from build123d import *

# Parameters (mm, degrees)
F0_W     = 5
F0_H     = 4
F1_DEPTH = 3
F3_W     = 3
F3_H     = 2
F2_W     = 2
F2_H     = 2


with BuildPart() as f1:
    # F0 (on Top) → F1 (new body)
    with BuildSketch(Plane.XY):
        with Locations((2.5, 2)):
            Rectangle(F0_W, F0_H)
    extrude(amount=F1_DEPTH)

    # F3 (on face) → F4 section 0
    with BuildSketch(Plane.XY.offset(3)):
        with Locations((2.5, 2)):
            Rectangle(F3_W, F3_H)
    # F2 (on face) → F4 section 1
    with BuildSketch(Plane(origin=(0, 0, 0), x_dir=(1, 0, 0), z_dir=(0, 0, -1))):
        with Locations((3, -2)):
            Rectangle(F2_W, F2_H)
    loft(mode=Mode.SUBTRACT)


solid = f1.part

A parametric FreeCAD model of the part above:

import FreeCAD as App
import Part
import Sketcher
from FreeCAD import Vector

doc = App.newDocument("Part")
params = doc.addObject("Spreadsheet::Sheet", "Params")
for row, (alias, value) in enumerate([
    ("sketch1_width", "5 mm"),
    ("sketch1_height", "4 mm"),
    ("pad1_length", "3 mm"),
    ("sketch2_width", "3 mm"),
    ("sketch2_height", "2 mm"),
    ("sketch3_width", "2 mm"),
], start=1):
    params.set(f"A{row}", alias)
    params.set(f"B{row}", "=" + value)
    params.setAlias(f"B{row}", alias)

body = doc.addObject("PartDesign::Body", "Body")

# Sketch on XY plane
sketch1 = body.newObject("Sketcher::SketchObject", "Sketch")
sketch1.AttachmentSupport = (doc.getObject("XY_Plane"), [""])
sketch1.MapMode = "FlatFace"
sketch1.addGeometry(Part.LineSegment(Vector(0, 4, 0), Vector(0, 0, 0)), False)
sketch1.addGeometry(Part.LineSegment(Vector(0, 0, 0), Vector(5, 0, 0)), False)
sketch1.addGeometry(Part.LineSegment(Vector(5, 0, 0), Vector(5, 4, 0)), False)
sketch1.addGeometry(Part.LineSegment(Vector(5, 4, 0), Vector(0, 4, 0)), False)
sketch1.addConstraint(Sketcher.Constraint("Coincident", 0, 2, 1, 1))
sketch1.addConstraint(Sketcher.Constraint("Coincident", 1, 2, 2, 1))
sketch1.addConstraint(Sketcher.Constraint("Coincident", 2, 2, 3, 1))
sketch1.addConstraint(Sketcher.Constraint("Coincident", 3, 2, 0, 1))
sketch1.addConstraint(Sketcher.Constraint("Vertical", 0))
sketch1.addConstraint(Sketcher.Constraint("Horizontal", 1))
sketch1.addConstraint(Sketcher.Constraint("Vertical", 2))
sketch1.addConstraint(Sketcher.Constraint("Horizontal", 3))
sketch1.addConstraint(Sketcher.Constraint("Coincident", 0, 2, -1, 1))
sketch1.addConstraint(Sketcher.Constraint("DistanceX", 1, 1, 1, 2, 5.0))
sketch1.addConstraint(Sketcher.Constraint("DistanceY", 0, 2, 0, 1, 4.0))
sketch1.setExpression("Constraints[9]", "Params.sketch1_width")
sketch1.setExpression("Constraints[10]", "Params.sketch1_height")
pad1 = body.newObject("PartDesign::Pad", "Pad")
pad1.Profile = sketch1
pad1.setExpression("Length", "Params.pad1_length")

# Sketch on XY plane
sketch2 = body.newObject("Sketcher::SketchObject", "Sketch001")
sketch2.AttachmentSupport = (doc.getObject("XY_Plane"), [""])
sketch2.MapMode = "FlatFace"
sketch2.AttachmentOffset = App.Placement(Vector(0, 0, 3), App.Rotation())
sketch2.addGeometry(Part.LineSegment(Vector(1, 3, 0), Vector(1, 1, 0)), False)
sketch2.addGeometry(Part.LineSegment(Vector(1, 1, 0), Vector(4, 1, 0)), False)
sketch2.addGeometry(Part.LineSegment(Vector(4, 1, 0), Vector(4, 3, 0)), False)
sketch2.addGeometry(Part.LineSegment(Vector(4, 3, 0), Vector(1, 3, 0)), False)
sketch2.addConstraint(Sketcher.Constraint("Coincident", 0, 2, 1, 1))
sketch2.addConstraint(Sketcher.Constraint("Coincident", 1, 2, 2, 1))
sketch2.addConstraint(Sketcher.Constraint("Coincident", 2, 2, 3, 1))
sketch2.addConstraint(Sketcher.Constraint("Coincident", 3, 2, 0, 1))
sketch2.addConstraint(Sketcher.Constraint("Vertical", 0))
sketch2.addConstraint(Sketcher.Constraint("Horizontal", 1))
sketch2.addConstraint(Sketcher.Constraint("Vertical", 2))
sketch2.addConstraint(Sketcher.Constraint("Horizontal", 3))
sketch2.addConstraint(Sketcher.Constraint("DistanceX", 1, 1, 1, 2, 3.0))
sketch2.addConstraint(Sketcher.Constraint("DistanceY", 0, 2, 0, 1, 2.0))
sketch2.addConstraint(Sketcher.Constraint("DistanceX", -1, 1, 0, 2, 1.0))
sketch2.addConstraint(Sketcher.Constraint("DistanceY", -1, 1, 0, 2, 1.0))
sketch2.setExpression("Constraints[8]", "Params.sketch2_width")
sketch2.setExpression("Constraints[9]", "Params.sketch2_height")

# Sketch on XY plane
sketch3 = body.newObject("Sketcher::SketchObject", "Sketch002")
sketch3.AttachmentSupport = (doc.getObject("XY_Plane"), [""])
sketch3.MapMode = "FlatFace"
sketch3.addGeometry(Part.LineSegment(Vector(2, 1, 0), Vector(2, 3, 0)), False)
sketch3.addGeometry(Part.LineSegment(Vector(2, 3, 0), Vector(4, 3, 0)), False)
sketch3.addGeometry(Part.LineSegment(Vector(4, 3, 0), Vector(4, 1, 0)), False)
sketch3.addGeometry(Part.LineSegment(Vector(4, 1, 0), Vector(2, 1, 0)), False)
sketch3.addConstraint(Sketcher.Constraint("Coincident", 0, 2, 1, 1))
sketch3.addConstraint(Sketcher.Constraint("Coincident", 1, 2, 2, 1))
sketch3.addConstraint(Sketcher.Constraint("Coincident", 2, 2, 3, 1))
sketch3.addConstraint(Sketcher.Constraint("Coincident", 3, 2, 0, 1))
sketch3.addConstraint(Sketcher.Constraint("Vertical", 0))
sketch3.addConstraint(Sketcher.Constraint("Horizontal", 1))
sketch3.addConstraint(Sketcher.Constraint("Vertical", 2))
sketch3.addConstraint(Sketcher.Constraint("Horizontal", 3))
sketch3.addConstraint(Sketcher.Constraint("Equal", 3, 0))
sketch3.addConstraint(Sketcher.Constraint("DistanceX", 1, 1, 1, 2, 2.0))
sketch3.addConstraint(Sketcher.Constraint("DistanceX", -1, 1, 0, 2, 2.0))
sketch3.addConstraint(Sketcher.Constraint("DistanceY", -1, 1, 0, 2, 3.0))
sketch3.setExpression("Constraints[9]", "Params.sketch3_width")

subtractiveloft = body.newObject("PartDesign::SubtractiveLoft", "SubtractiveLoft")
subtractiveloft.Profile = sketch2
subtractiveloft.Sections = [sketch3]

doc.recompute()
